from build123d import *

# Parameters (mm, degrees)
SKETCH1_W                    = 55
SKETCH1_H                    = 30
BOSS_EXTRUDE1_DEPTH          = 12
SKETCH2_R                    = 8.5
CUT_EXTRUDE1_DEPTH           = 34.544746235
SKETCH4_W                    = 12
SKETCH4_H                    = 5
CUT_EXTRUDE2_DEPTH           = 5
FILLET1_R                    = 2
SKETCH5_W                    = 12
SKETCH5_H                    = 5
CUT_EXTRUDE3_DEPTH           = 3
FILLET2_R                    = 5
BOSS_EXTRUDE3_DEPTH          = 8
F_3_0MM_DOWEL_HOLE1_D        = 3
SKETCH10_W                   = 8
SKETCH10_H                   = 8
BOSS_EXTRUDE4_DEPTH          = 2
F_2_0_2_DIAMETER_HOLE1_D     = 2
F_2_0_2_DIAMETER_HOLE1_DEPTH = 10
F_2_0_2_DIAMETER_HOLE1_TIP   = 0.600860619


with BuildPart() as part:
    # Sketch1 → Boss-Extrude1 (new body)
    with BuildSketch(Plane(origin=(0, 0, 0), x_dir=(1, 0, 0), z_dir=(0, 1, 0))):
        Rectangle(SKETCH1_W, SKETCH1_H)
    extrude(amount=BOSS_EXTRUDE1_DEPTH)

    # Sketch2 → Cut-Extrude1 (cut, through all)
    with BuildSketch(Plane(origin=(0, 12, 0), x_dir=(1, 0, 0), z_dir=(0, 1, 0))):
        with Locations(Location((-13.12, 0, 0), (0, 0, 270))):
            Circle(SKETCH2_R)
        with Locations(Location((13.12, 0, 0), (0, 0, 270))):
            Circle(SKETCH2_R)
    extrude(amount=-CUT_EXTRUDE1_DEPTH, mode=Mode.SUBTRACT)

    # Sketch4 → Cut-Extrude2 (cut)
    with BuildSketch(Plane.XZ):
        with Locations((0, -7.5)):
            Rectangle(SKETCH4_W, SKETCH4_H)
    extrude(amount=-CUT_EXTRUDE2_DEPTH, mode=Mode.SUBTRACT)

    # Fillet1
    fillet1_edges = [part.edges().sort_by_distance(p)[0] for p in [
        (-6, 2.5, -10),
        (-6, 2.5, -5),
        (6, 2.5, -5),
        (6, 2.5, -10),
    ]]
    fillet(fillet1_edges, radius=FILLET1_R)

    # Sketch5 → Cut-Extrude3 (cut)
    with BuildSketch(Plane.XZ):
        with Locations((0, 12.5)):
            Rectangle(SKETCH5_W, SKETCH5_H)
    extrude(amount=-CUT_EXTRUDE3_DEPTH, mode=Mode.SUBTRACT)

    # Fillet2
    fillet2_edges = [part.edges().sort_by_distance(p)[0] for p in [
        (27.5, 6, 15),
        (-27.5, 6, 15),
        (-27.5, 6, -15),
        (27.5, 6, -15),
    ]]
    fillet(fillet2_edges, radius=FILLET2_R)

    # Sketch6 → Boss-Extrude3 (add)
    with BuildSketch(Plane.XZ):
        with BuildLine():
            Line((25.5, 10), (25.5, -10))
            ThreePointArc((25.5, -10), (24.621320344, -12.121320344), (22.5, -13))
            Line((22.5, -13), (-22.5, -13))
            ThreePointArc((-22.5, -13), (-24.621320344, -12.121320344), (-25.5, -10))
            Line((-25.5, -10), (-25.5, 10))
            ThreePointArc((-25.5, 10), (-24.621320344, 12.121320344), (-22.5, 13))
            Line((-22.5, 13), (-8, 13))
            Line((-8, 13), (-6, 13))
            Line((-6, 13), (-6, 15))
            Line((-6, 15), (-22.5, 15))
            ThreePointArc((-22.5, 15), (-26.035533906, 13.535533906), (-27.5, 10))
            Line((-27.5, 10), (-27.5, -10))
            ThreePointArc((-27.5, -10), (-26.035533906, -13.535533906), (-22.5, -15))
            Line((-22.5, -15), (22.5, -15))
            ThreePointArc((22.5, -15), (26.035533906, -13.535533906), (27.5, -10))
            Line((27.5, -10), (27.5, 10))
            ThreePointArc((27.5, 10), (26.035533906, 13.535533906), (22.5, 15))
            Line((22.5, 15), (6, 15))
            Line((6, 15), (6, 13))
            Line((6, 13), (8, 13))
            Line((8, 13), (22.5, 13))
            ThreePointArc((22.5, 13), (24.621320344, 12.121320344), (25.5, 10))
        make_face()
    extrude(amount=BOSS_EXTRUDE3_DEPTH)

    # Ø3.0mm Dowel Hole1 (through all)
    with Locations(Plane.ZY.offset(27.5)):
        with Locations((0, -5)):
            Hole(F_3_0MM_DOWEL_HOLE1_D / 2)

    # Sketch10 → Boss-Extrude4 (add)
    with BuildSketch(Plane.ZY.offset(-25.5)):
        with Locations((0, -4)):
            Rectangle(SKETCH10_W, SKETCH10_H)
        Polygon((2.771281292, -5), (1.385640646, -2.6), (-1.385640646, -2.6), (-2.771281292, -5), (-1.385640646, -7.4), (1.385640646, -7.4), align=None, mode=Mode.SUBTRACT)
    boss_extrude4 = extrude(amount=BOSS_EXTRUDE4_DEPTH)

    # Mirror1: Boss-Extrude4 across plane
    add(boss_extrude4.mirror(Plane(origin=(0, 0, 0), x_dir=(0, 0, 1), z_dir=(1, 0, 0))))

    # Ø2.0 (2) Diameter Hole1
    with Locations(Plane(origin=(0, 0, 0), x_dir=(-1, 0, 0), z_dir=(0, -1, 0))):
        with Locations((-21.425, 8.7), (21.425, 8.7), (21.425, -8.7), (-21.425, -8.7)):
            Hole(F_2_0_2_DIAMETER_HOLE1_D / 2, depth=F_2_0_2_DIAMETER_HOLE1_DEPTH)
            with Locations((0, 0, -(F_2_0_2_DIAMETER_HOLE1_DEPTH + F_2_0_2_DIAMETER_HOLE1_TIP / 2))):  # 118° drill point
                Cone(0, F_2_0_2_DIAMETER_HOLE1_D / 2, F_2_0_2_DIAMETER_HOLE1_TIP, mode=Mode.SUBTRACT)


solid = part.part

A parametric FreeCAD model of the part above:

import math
import FreeCAD as App
import Part
import Sketcher

V = App.Vector
Q = App.Units.Quantity


def edges_at(feature, points):
    """Names of the edges that pass closest to the given points."""
    edges = feature.Shape.Edges
    near = lambda p: min(range(len(edges)), key=lambda i: edges[i].distToShape(Part.Vertex(*p))[0])
    return sorted({f"Edge{near(p) + 1}" for p in points})


def add_polygon(sketch, points):
    """Adds a closed chain of lines whose ends are joined by coincident constraints."""
    first, n = sketch.GeometryCount, len(points)
    for a, b in zip(points, points[1:] + points[:1]):
        sketch.addGeometry(Part.LineSegment(App.Vector(*a, 0), App.Vector(*b, 0)), False)
    for i in range(n):
        sketch.addConstraint(Sketcher.Constraint("Coincident", first + i, 2, first + (i + 1) % n, 1))

doc = App.newDocument("Part")
body = doc.addObject("PartDesign::Body", "Body")

# Sketch on XZ plane
sketch1 = body.newObject("Sketcher::SketchObject", "Sketch")
sketch1.AttachmentSupport = (doc.getObject("XZ_Plane"), [""])
sketch1.MapMode = "FlatFace"
add_polygon(sketch1, [(-28, -15), (-28, 15), (28, 15), (28, -15)])  # lines 0-3
sketch1.addConstraint(Sketcher.Constraint("Vertical", 0))
sketch1.addConstraint(Sketcher.Constraint("Horizontal", 1))
sketch1.addConstraint(Sketcher.Constraint("Vertical", 2))
sketch1.addConstraint(Sketcher.Constraint("Horizontal", 3))
sketch1.addConstraint(Sketcher.Constraint("Symmetric", 0, 2, 2, 2, -1, 1))
sketch1.addConstraint(Sketcher.Constraint("DistanceX", 1, 1, 1, 2, Q("55 mm")))
sketch1.addConstraint(Sketcher.Constraint("DistanceY", 0, 1, 0, 2, Q("30 mm")))
pad1 = body.newObject("PartDesign::Pad", "Pad")
pad1.Profile = sketch1
pad1.Length = 12
pad1.Reversed = True

# Sketch on XZ plane
sketch2 = body.newObject("Sketcher::SketchObject", "Sketch001")
sketch2.AttachmentSupport = (doc.getObject("XZ_Plane"), [""])
sketch2.MapMode = "FlatFace"
sketch2.AttachmentOffset = App.Placement(V(0, 0, -12), App.Rotation())
sketch2.addGeometry(Part.Circle(V(-13, 0, 0), V(0, 0, 1), 8), False)
sketch2.addGeometry(Part.Circle(V(13, 0, 0), V(0, 0, 1), 8), False)
sketch2.addConstraint(Sketcher.Constraint("Equal", 0, 1))
sketch2.addConstraint(Sketcher.Constraint("Symmetric", 0, 3, 1, 3, -1, 1))
sketch2.addConstraint(Sketcher.Constraint("PointOnObject", 0, 3, -1))
sketch2.addConstraint(Sketcher.Constraint("Diameter", 0, Q("17 mm")))
sketch2.addConstraint(Sketcher.Constraint("DistanceX", 0, 3, -1, 1, Q("13.12 mm")))
pocket1 = body.newObject("PartDesign::Pocket", "Pocket")
pocket1.Profile = sketch2
pocket1.Type = "ThroughAll"
pocket1.Reversed = True

# Sketch on XZ plane
sketch3 = body.newObject("Sketcher::SketchObject", "Sketch002")
sketch3.AttachmentSupport = (doc.getObject("XZ_Plane"), [""])
sketch3.MapMode = "FlatFace"
add_polygon(sketch3, [(-6, -5), (-6, -10), (6, -10), (6, -5)])  # lines 0-3
sketch3.addConstraint(Sketcher.Constraint("Vertical", 0))
sketch3.addConstraint(Sketcher.Constraint("Horizontal", 1))
sketch3.addConstraint(Sketcher.Constraint("Vertical", 2))
sketch3.addConstraint(Sketcher.Constraint("Horizontal", 3))
sketch3.addConstraint(Sketcher.Constraint("DistanceX", 1, 1, 1, 2, Q("12 mm")))
sketch3.addConstraint(Sketcher.Constraint("DistanceY", 0, 2, 0, 1, Q("5 mm")))
sketch3.addConstraint(Sketcher.Constraint("DistanceX", 0, 2, -1, 1, Q("6 mm")))
sketch3.addConstraint(Sketcher.Constraint("DistanceY", 0, 2, -1, 1, Q("10 mm")))
pocket2 = body.newObject("PartDesign::Pocket", "Pocket001")
pocket2.Profile = sketch3
pocket2.Length = 5
doc.recompute()

fillet = body.newObject("PartDesign::Fillet", "Fillet")
fillet.Base = (pocket2, edges_at(pocket2, [
    (-6, 2.5, -10),
    (-6, 2.5, -5),
    (6, 2.5, -5),
    (6, 2.5, -10),
]))
fillet.Radius = 2

# Sketch on XZ plane
sketch4 = body.newObject("Sketcher::SketchObject", "Sketch003")
sketch4.AttachmentSupport = (doc.getObject("XZ_Plane"), [""])
sketch4.MapMode = "FlatFace"
add_polygon(sketch4, [(-6, 15), (-6, 10), (6, 10), (6, 15)])  # lines 0-3
sketch4.addConstraint(Sketcher.Constraint("Vertical", 0))
sketch4.addConstraint(Sketcher.Constraint("Horizontal", 1))
sketch4.addConstraint(Sketcher.Constraint("Vertical", 2))
sketch4.addConstraint(Sketcher.Constraint("Horizontal", 3))
sketch4.addConstraint(Sketcher.Constraint("DistanceX", 1, 1, 1, 2, Q("12 mm")))
sketch4.addConstraint(Sketcher.Constraint("DistanceY", 0, 2, 0, 1, Q("5 mm")))
sketch4.addConstraint(Sketcher.Constraint("DistanceX", 0, 2, -1, 1, Q("6 mm")))
sketch4.addConstraint(Sketcher.Constraint("DistanceY", -1, 1, 0, 2, Q("10 mm")))
pocket3 = body.newObject("PartDesign::Pocket", "Pocket002")
pocket3.Profile = sketch4
pocket3.Length = 3
doc.recompute()

fillet2 = body.newObject("PartDesign::Fillet", "Fillet001")
fillet2.Base = (pocket3, edges_at(pocket3, [
    (27.5, 6, 15),
    (-27.5, 6, 15),
    (-27.5, 6, -15),
    (27.5, 6, -15),
]))
fillet2.Radius = 5

# Sketch on XZ plane
sketch5 = body.newObject("Sketcher::SketchObject", "Sketch004")
sketch5.AttachmentSupport = (doc.getObject("XZ_Plane"), [""])
sketch5.MapMode = "FlatFace"
sketch5.addGeometry(Part.LineSegment(V(25.5, 10, 0), V(25.5, -10, 0)), False)
sketch5.addGeometry(Part.ArcOfCircle(Part.Circle(V(22.5, -10, 0), V(0, 0, 1), 3), math.radians(-90), math.radians(0)), False)
sketch5.addGeometry(Part.LineSegment(V(22.5, -13, 0), V(-22.5, -13, 0)), False)
sketch5.addGeometry(Part.ArcOfCircle(Part.Circle(V(-22.5, -10, 0), V(0, 0, 1), 3), math.radians(180), math.radians(270)), False)
sketch5.addGeometry(Part.LineSegment(V(-25.5, -10, 0), V(-25.5, 10, 0)), False)
sketch5.addGeometry(Part.ArcOfCircle(Part.Circle(V(-22.5, 10, 0), V(0, 0, 1), 3), math.radians(90), math.radians(180)), False)
sketch5.addGeometry(Part.LineSegment(V(-22.5, 13, 0), V(-6, 13, 0)), False)
sketch5.addGeometry(Part.LineSegment(V(-6, 13, 0), V(-6, 15, 0)), False)
sketch5.addGeometry(Part.LineSegment(V(-6, 15, 0), V(-22.5, 15, 0)), False)
sketch5.addGeometry(Part.ArcOfCircle(Part.Circle(V(-22.5, 10, 0), V(0, 0, 1), 5), math.radians(90), math.radians(180)), False)
sketch5.addGeometry(Part.LineSegment(V(-27.5, 10, 0), V(-27.5, -10, 0)), False)
sketch5.addGeometry(Part.ArcOfCircle(Part.Circle(V(-22.5, -10, 0), V(0, 0, 1), 5), math.radians(180), math.radians(270)), False)
sketch5.addGeometry(Part.LineSegment(V(-22.5, -15, 0), V(22.5, -15, 0)), False)
sketch5.addGeometry(Part.ArcOfCircle(Part.Circle(V(22.5, -10, 0), V(0, 0, 1), 5), math.radians(-90), math.radians(0)), False)
sketch5.addGeometry(Part.LineSegment(V(27.5, -10, 0), V(27.5, 10, 0)), False)
sketch5.addGeometry(Part.ArcOfCircle(Part.Circle(V(22.5, 10, 0), V(0, 0, 1), 5), math.radians(0), math.radians(90)), False)
sketch5.addGeometry(Part.LineSegment(V(22.5, 15, 0), V(6, 15, 0)), False)
sketch5.addGeometry(Part.LineSegment(V(6, 15, 0), V(6, 13, 0)), False)
sketch5.addGeometry(Part.LineSegment(V(6, 13, 0), V(22.5, 13, 0)), False)
sketch5.addGeometry(Part.ArcOfCircle(Part.Circle(V(22.5, 10, 0), V(0, 0, 1), 3), math.radians(0), math.radians(90)), False)
sketch5.addConstraint(Sketcher.Constraint("Tangent", 0, 2, 1, 2))
sketch5.addConstraint(Sketcher.Constraint("Tangent", 1, 1, 2, 1))
sketch5.addConstraint(Sketcher.Constraint("Tangent", 2, 2, 3, 2))
sketch5.addConstraint(Sketcher.Constraint("Tangent", 3, 1, 4, 1))
sketch5.addConstraint(Sketcher.Constraint("Tangent", 4, 2, 5, 2))
sketch5.addConstraint(Sketcher.Constraint("Tangent", 5, 1, 6, 1))
sketch5.addConstraint(Sketcher.Constraint("Coincident", 6, 2, 7, 1))
sketch5.addConstraint(Sketcher.Constraint("Coincident", 7, 2, 8, 1))
sketch5.addConstraint(Sketcher.Constraint("Tangent", 8, 2, 9, 1))
sketch5.addConstraint(Sketcher.Constraint("Tangent", 9, 2, 10, 1))
sketch5.addConstraint(Sketcher.Constraint("Tangent", 10, 2, 11, 1))
sketch5.addConstraint(Sketcher.Constraint("Tangent", 11, 2, 12, 1))
sketch5.addConstraint(Sketcher.Constraint("Tangent", 12, 2, 13, 1))
sketch5.addConstraint(Sketcher.Constraint("Tangent", 13, 2, 14, 1))
sketch5.addConstraint(Sketcher.Constraint("Tangent", 14, 2, 15, 1))
sketch5.addConstraint(Sketcher.Constraint("Tangent", 15, 2, 16, 1))
sketch5.addConstraint(Sketcher.Constraint("Coincident", 16, 2, 17, 1))
sketch5.addConstraint(Sketcher.Constraint("Coincident", 17, 2, 18, 1))
sketch5.addConstraint(Sketcher.Constraint("Tangent", 18, 2, 19, 2))
sketch5.addConstraint(Sketcher.Constraint("Tangent", 19, 1, 0, 1))
sketch5.addConstraint(Sketcher.Constraint("Vertical", 0))
sketch5.addConstraint(Sketcher.Constraint("Horizontal", 2))
sketch5.addConstraint(Sketcher.Constraint("Vertical", 4))
sketch5.addConstraint(Sketcher.Constraint("Horizontal", 6))
sketch5.addConstraint(Sketcher.Constraint("Vertical", 7))
sketch5.addConstraint(Sketcher.Constraint("Horizontal", 8))
sketch5.addConstraint(Sketcher.Constraint("Vertical", 10))
sketch5.addConstraint(Sketcher.Constraint("Horizontal", 12))
sketch5.addConstraint(Sketcher.Constraint("Vertical", 14))
sketch5.addConstraint(Sketcher.Constraint("Horizontal", 16))
sketch5.addConstraint(Sketcher.Constraint("Vertical", 17))
sketch5.addConstraint(Sketcher.Constraint("Horizontal", 18))
sketch5.addConstraint(Sketcher.Constraint("Coincident", 9, 3, 5, 3))
sketch5.addConstraint(Sketcher.Constraint("Coincident", 11, 3, 3, 3))
sketch5.addConstraint(Sketcher.Constraint("Coincident", 13, 3, 1, 3))
sketch5.addConstraint(Sketcher.Constraint("Coincident", 19, 3, 15, 3))
sketch5.addConstraint(Sketcher.Constraint("Equal", 1, 3))
sketch5.addConstraint(Sketcher.Constraint("Equal", 3, 5))
sketch5.addConstraint(Sketcher.Constraint("Equal", 13, 15))
sketch5.addConstraint(Sketcher.Constraint("Symmetric", 1, 3, 5, 3, -1, 1))
sketch5.addConstraint(Sketcher.Constraint("Symmetric", 7, 2, 16, 2, -2))
sketch5.addConstraint(Sketcher.Constraint("Radius", 1, Q("3 mm")))
sketch5.addConstraint(Sketcher.Constraint("Radius", 9, Q("5 mm")))
sketch5.addConstraint(Sketcher.Constraint("DistanceX", 2, 2, 2, 1, Q("45 mm")))
sketch5.addConstraint(Sketcher.Constraint("DistanceY", 0, 2, 0, 1, Q("20 mm")))
sketch5.addConstraint(Sketcher.Constraint("DistanceX", 6, 1, 6, 2, Q("16.5 mm")))
pad2 = body.newObject("PartDesign::Pad", "Pad001")
pad2.Profile = sketch5
pad2.Length = 8

# Sketch on YZ plane
sketch6 = body.newObject("Sketcher::SketchObject", "Sketch005")
sketch6.AttachmentSupport = (doc.getObject("YZ_Plane"), [""])
sketch6.MapMode = "FlatFace"
sketch6.AttachmentOffset = App.Placement(V(0, 0, -27.5), App.Rotation())
sketch6.addGeometry(Part.Circle(V(-5, 0, 0), V(0, 0, 1), 1.5), False)
sketch6.addConstraint(Sketcher.Constraint("PointOnObject", 0, 3, -1))
sketch6.addConstraint(Sketcher.Constraint("Diameter", 0, Q("3 mm")))
sketch6.addConstraint(Sketcher.Constraint("DistanceX", 0, 3, -1, 1, Q("5 mm")))
doc.recompute()
hole = body.newObject("PartDesign::Hole", "Hole")
hole.Profile = sketch6
hole.ThreadType = "None"
hole.Diameter = 3
hole.DepthType = "ThroughAll"
hole.Reversed = True

# Sketch on YZ plane
sketch7 = body.newObject("Sketcher::SketchObject", "Sketch006")
sketch7.AttachmentSupport = (doc.getObject("YZ_Plane"), [""])
sketch7.MapMode = "FlatFace"
sketch7.AttachmentOffset = App.Placement(V(0, 0, 25.5), App.Rotation())
add_polygon(sketch7, [(0, -4), (-8, -4), (-8, 4), (0, 4)])  # lines 0-3
add_polygon(sketch7, [(-2.6, 1.4), (-5, 2.8), (-7.4, 1.4), (-7.4, -1.4), (-5, -2.8), (-2.6, -1.4)])  # lines 4-9
sketch7.addConstraint(Sketcher.Constraint("Horizontal", 0))
sketch7.addConstraint(Sketcher.Constraint("Vertical", 1))
sketch7.addConstraint(Sketcher.Constraint("Horizontal", 2))
sketch7.addConstraint(Sketcher.Constraint("Vertical", 3))
sketch7.addConstraint(Sketcher.Constraint("Vertical", 6))
sketch7.addConstraint(Sketcher.Constraint("Vertical", 9))
sketch7.addConstraint(Sketcher.Constraint("Symmetric", 2, 2, 3, 2, -1, 1))
sketch7.addConstraint(Sketcher.Constraint("Symmetric", 4, 2, 7, 2, -1))
sketch7.addConstraint(Sketcher.Constraint("Parallel", 4, 7))
sketch7.addConstraint(Sketcher.Constraint("Parallel", 5, 8))
sketch7.addConstraint(Sketcher.Constraint("Horizontal", 6, 2, 8, 2))
sketch7.addConstraint(Sketcher.Constraint("Horizontal", 5, 2, 9, 2))
sketch7.addConstraint(Sketcher.Constraint("Equal", 2, 1))
sketch7.addConstraint(Sketcher.Constraint("DistanceX", 0, 2, 0, 1, Q("8 mm")))
sketch7.addConstraint(Sketcher.Constraint("Angle", 4, Q("150 deg")))
sketch7.addConstraint(Sketcher.Constraint("DistanceX", 4, 2, -1, 1, Q("5 mm")))
sketch7.addConstraint(Sketcher.Constraint("DistanceX", 5, 2, -1, 1, Q("7.4 mm")))
sketch7.addConstraint(Sketcher.Constraint("DistanceY", 6, 2, 6, 1, Q("2.771281 mm")))
pad3 = body.newObject("PartDesign::Pad", "Pad002")
pad3.Profile = sketch7
pad3.Length = 2
pad3.Reversed = True
doc.recompute()

mirrored = body.newObject("PartDesign::Mirrored", "Mirrored")
mirrored.Originals = [pad3]
mirrored.MirrorPlane = (doc.getObject("YZ_Plane"), [""])
body.Tip = mirrored

# Sketch on XZ plane
sketch8 = body.newObject("Sketcher::SketchObject", "Sketch007")
sketch8.AttachmentSupport = (doc.getObject("XZ_Plane"), [""])
sketch8.MapMode = "FlatFace"
sketch8.addGeometry(Part.Circle(V(21.4, -8.7, 0), V(0, 0, 1), 1), False)
sketch8.addGeometry(Part.Circle(V(-21.4, -8.7, 0), V(0, 0, 1), 1), False)
sketch8.addGeometry(Part.Circle(V(-21.4, 8.7, 0), V(0, 0, 1), 1), False)
sketch8.addGeometry(Part.Circle(V(21.4, 8.7, 0), V(0, 0, 1), 1), False)
sketch8.addConstraint(Sketcher.Constraint("Equal", 0, 1))
sketch8.addConstraint(Sketcher.Constraint("Equal", 1, 2))
sketch8.addConstraint(Sketcher.Constraint("Equal", 2, 3))
sketch8.addConstraint(Sketcher.Constraint("Symmetric", 0, 3, 2, 3, -1, 1))
sketch8.addConstraint(Sketcher.Constraint("Symmetric", 1, 3, 3, 3, -1, 1))
sketch8.addConstraint(Sketcher.Constraint("Symmetric", 0, 3, 1, 3, -2))
sketch8.addConstraint(Sketcher.Constraint("Diameter", 0, Q("2 mm")))
sketch8.addConstraint(Sketcher.Constraint("DistanceY", 0, 3, -1, 1, Q("8.7 mm")))
sketch8.addConstraint(Sketcher.Constraint("DistanceX", 1, 3, 0, 3, Q("42.85 mm")))
doc.recompute()
hole2 = body.newObject("PartDesign::Hole", "Hole001")
hole2.Profile = sketch8
hole2.ThreadType = "None"
hole2.Diameter = 2
hole2.DepthType = "Dimension"
hole2.Depth = 10
hole2.DrillPoint = "Angled"
hole2.DrillPointAngle = 118

doc.recompute()
